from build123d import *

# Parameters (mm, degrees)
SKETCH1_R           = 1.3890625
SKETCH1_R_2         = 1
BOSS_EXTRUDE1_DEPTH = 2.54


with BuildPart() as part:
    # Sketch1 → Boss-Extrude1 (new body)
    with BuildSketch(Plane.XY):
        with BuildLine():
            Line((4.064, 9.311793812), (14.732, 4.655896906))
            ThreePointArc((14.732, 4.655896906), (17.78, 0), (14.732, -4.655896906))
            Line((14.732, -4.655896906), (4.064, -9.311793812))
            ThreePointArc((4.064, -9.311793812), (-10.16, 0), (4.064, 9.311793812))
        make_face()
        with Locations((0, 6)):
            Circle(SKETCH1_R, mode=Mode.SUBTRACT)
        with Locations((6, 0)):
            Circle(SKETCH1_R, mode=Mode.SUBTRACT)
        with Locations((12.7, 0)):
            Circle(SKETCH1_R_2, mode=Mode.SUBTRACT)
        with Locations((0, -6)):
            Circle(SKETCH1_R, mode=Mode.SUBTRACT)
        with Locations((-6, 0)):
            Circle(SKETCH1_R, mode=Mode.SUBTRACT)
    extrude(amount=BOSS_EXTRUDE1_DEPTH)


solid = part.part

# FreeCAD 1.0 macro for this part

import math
import FreeCAD as App
import Part
import Sketcher

V = App.Vector
Q = App.Units.Quantity

doc = App.newDocument("Part")
body = doc.addObject("PartDesign::Body", "Body")

sketch1 = body.newObject("Sketcher::SketchObject", "Sketch")
sketch1.AttachmentSupport = (doc.getObject("XY_Plane"), [""])
sketch1.MapMode = "FlatFace"
sketch1.addGeometry([
    Part.LineSegment(V(14.7, 4.7, 0), V(4.1, 9.3, 0)),
    Part.ArcOfCircle(Part.Circle(V(0, 0, 0), V(0, 0, 1), 10.2), math.radians(66), math.radians(294)),
    Part.LineSegment(V(4.1, -9.3, 0), V(14.7, -4.7, 0)),
    Part.ArcOfCircle(Part.Circle(V(12.7, 0, 0), V(0, 0, 1), 5.1), math.radians(-66), math.radians(66)),
    Part.Circle(V(12.7, 0, 0), V(0, 0, 1), 1),
    Part.Circle(V(6, 0, 0), V(0, 0, 1), 1.4),
    Part.Circle(V(0, -6, 0), V(0, 0, 1), 1.4),
    Part.Circle(V(-6, 0, 0), V(0, 0, 1), 1.4),
    Part.Circle(V(0, 6, 0), V(0, 0, 1), 1.4),
], False)
sketch1.addConstraint([
    Sketcher.Constraint("Tangent", 0, 2, 1, 1),
    Sketcher.Constraint("Tangent", 1, 2, 2, 1),
    Sketcher.Constraint("Tangent", 2, 2, 3, 1),
    Sketcher.Constraint("Tangent", 3, 2, 0, 1),
    Sketcher.Constraint("Coincident", 1, 3, -1, 1),
    Sketcher.Constraint("Coincident", 4, 3, 3, 3),
    Sketcher.Constraint("Equal", 5, 6),
    Sketcher.Constraint("Equal", 6, 7),
    Sketcher.Constraint("Equal", 7, 8),
    Sketcher.Constraint("Symmetric", 5, 3, 7, 3, -1, 1),
    Sketcher.Constraint("Symmetric", 6, 3, 8, 3, -1, 1),
    Sketcher.Constraint("PointOnObject", 3, 3, -1),
    Sketcher.Constraint("PointOnObject", 5, 3, -1),
    Sketcher.Constraint("PointOnObject", 6, 3, -2),
    Sketcher.Constraint("Radius", 1, Q("0.4 in")),
    Sketcher.Constraint("Radius", 3, Q("0.2 in")),
    Sketcher.Constraint("Diameter", 5, Q("0.109375 in")),
    Sketcher.Constraint("DistanceX", -1, 1, 3, 3, Q("0.5 in")),
    Sketcher.Constraint("Diameter", 4, Q("2 mm")),
    Sketcher.Constraint("DistanceX", -1, 1, 5, 3, Q("6 mm")),
    Sketcher.Constraint("DistanceY", 6, 3, -1, 1, Q("6 mm")),
])
pad1 = body.newObject("PartDesign::Pad", "Pad")
pad1.Profile = sketch1
pad1.Length = Q("0.1 in")

doc.recompute()
